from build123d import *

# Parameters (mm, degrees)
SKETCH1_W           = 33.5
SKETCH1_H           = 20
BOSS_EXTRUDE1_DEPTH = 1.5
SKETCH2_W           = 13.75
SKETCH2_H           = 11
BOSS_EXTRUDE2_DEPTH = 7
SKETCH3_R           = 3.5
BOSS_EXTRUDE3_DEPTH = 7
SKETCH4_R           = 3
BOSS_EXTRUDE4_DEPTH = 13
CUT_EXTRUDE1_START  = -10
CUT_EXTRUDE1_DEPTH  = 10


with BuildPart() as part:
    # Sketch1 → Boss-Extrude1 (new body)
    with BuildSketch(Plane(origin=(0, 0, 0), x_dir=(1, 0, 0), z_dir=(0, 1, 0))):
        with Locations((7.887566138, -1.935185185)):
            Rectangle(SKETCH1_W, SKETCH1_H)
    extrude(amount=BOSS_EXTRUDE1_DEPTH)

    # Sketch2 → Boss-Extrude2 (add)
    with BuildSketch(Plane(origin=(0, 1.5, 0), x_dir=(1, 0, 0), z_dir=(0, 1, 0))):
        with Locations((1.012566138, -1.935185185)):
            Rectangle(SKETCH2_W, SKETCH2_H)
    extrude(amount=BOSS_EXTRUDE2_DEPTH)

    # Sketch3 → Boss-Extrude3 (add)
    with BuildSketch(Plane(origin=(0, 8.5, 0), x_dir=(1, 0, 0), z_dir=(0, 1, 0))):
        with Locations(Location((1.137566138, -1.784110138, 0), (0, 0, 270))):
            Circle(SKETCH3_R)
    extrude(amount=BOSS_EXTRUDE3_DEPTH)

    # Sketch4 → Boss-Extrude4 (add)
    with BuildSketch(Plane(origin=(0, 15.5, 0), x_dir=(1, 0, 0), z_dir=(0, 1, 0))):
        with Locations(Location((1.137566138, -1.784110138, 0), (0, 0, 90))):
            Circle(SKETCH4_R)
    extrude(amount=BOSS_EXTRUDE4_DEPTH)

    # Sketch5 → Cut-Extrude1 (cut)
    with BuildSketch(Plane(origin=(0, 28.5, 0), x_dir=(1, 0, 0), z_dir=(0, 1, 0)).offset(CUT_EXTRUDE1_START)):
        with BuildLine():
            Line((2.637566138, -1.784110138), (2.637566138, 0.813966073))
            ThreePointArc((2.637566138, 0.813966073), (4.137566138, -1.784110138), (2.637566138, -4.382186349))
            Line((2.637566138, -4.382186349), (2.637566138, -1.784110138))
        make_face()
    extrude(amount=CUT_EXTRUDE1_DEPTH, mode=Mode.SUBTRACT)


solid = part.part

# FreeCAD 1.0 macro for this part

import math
import FreeCAD as App
import Part
import Sketcher
Q = App.Units.Quantity

doc = App.newDocument("Part")
body = doc.addObject("PartDesign::Body", "Body")

# Sketch on XZ plane
sketch1 = body.newObject("Sketcher::SketchObject", "Sketch")
sketch1.AttachmentSupport = (doc.getObject("XZ_Plane"), [""])
sketch1.MapMode = "FlatFace"
sketch1.addGeometry([
    Part.LineSegment(App.Vector(-9, -8, 0), App.Vector(-9, 12, 0)),
    Part.LineSegment(App.Vector(-9, 12, 0), App.Vector(25, 12, 0)),
    Part.LineSegment(App.Vector(25, 12, 0), App.Vector(25, -8, 0)),
    Part.LineSegment(App.Vector(25, -8, 0), App.Vector(-9, -8, 0)),
], False)
sketch1.addConstraint([
    Sketcher.Constraint("Coincident", 0, 2, 1, 1),
    Sketcher.Constraint("Coincident", 1, 2, 2, 1),
    Sketcher.Constraint("Coincident", 2, 2, 3, 1),
    Sketcher.Constraint("Coincident", 3, 2, 0, 1),
    Sketcher.Constraint("Vertical", 0),
    Sketcher.Constraint("Horizontal", 1),
    Sketcher.Constraint("Vertical", 2),
    Sketcher.Constraint("Horizontal", 3),
    Sketcher.Constraint("DistanceY", 0, 1, 0, 2, Q("20 mm")),
    Sketcher.Constraint("DistanceX", 1, 1, 1, 2, Q("33.5 mm")),
    Sketcher.Constraint("DistanceX", 0, 2, -1, 1, Q("8.862434 mm")),
    Sketcher.Constraint("DistanceY", -1, 1, 0, 2, Q("11.935185 mm")),
])
pad1 = body.newObject("PartDesign::Pad", "Pad")
pad1.Profile = sketch1
pad1.Length = 1.5
pad1.Reversed = True

# Sketch on XZ plane
sketch2 = body.newObject("Sketcher::SketchObject", "Sketch001")
sketch2.AttachmentSupport = (doc.getObject("XZ_Plane"), [""])
sketch2.MapMode = "FlatFace"
sketch2.AttachmentOffset = App.Placement(App.Vector(0, 0, -1.5), App.Rotation())
sketch2.addGeometry([
    Part.LineSegment(App.Vector(-6, -4, 0), App.Vector(-6, 7, 0)),
    Part.LineSegment(App.Vector(-6, 7, 0), App.Vector(8, 7, 0)),
    Part.LineSegment(App.Vector(8, 7, 0), App.Vector(8, -4, 0)),
    Part.LineSegment(App.Vector(8, -4, 0), App.Vector(-6, -4, 0)),
], False)
sketch2.addConstraint([
    Sketcher.Constraint("Coincident", 0, 2, 1, 1),
    Sketcher.Constraint("Coincident", 1, 2, 2, 1),
    Sketcher.Constraint("Coincident", 2, 2, 3, 1),
    Sketcher.Constraint("Coincident", 3, 2, 0, 1),
    Sketcher.Constraint("Vertical", 0),
    Sketcher.Constraint("Horizontal", 1),
    Sketcher.Constraint("Vertical", 2),
    Sketcher.Constraint("Horizontal", 3),
    Sketcher.Constraint("DistanceY", 0, 1, 0, 2, Q("11 mm")),
    Sketcher.Constraint("DistanceX", 1, 1, 1, 2, Q("13.75 mm")),
    Sketcher.Constraint("DistanceX", 0, 2, -1, 1, Q("5.862434 mm")),
    Sketcher.Constraint("DistanceY", -1, 1, 0, 2, Q("7.435185 mm")),
])
pad2 = body.newObject("PartDesign::Pad", "Pad001")
pad2.Profile = sketch2
pad2.Length = 7
pad2.Reversed = True

# Sketch on XZ plane
sketch3 = body.newObject("Sketcher::SketchObject", "Sketch002")
sketch3.AttachmentSupport = (doc.getObject("XZ_Plane"), [""])
sketch3.MapMode = "FlatFace"
sketch3.AttachmentOffset = App.Placement(App.Vector(0, 0, -8.5), App.Rotation())
sketch3.addGeometry(Part.Circle(App.Vector(1.1, 1.8, 0), App.Vector(0, 0, 1), 3.5), False)
sketch3.addConstraint([
    Sketcher.Constraint("Diameter", 0, Q("7 mm")),
    Sketcher.Constraint("DistanceY", -1, 1, 0, 3, Q("1.78411 mm")),
    Sketcher.Constraint("DistanceX", -1, 1, 0, 3, Q("1.137566 mm")),
])
pad3 = body.newObject("PartDesign::Pad", "Pad002")
pad3.Profile = sketch3
pad3.Length = 7
pad3.Reversed = True

# Sketch on XZ plane
sketch4 = body.newObject("Sketcher::SketchObject", "Sketch003")
sketch4.AttachmentSupport = (doc.getObject("XZ_Plane"), [""])
sketch4.MapMode = "FlatFace"
sketch4.AttachmentOffset = App.Placement(App.Vector(0, 0, -15.5), App.Rotation())
sketch4.addGeometry(Part.Circle(App.Vector(1.1, 1.8, 0), App.Vector(0, 0, 1), 3), False)
sketch4.addConstraint([
    Sketcher.Constraint("Diameter", 0, Q("6 mm")),
    Sketcher.Constraint("DistanceY", -1, 1, 0, 3, Q("1.78411 mm")),
    Sketcher.Constraint("DistanceX", -1, 1, 0, 3, Q("1.137566 mm")),
])
pad4 = body.newObject("PartDesign::Pad", "Pad003")
pad4.Profile = sketch4
pad4.Length = 13
pad4.Reversed = True

# Sketch on XZ plane
sketch5 = body.newObject("Sketcher::SketchObject", "Sketch004")
sketch5.AttachmentSupport = (doc.getObject("XZ_Plane"), [""])
sketch5.MapMode = "FlatFace"
sketch5.AttachmentOffset = App.Placement(App.Vector(0, 0, -18.5), App.Rotation())
sketch5.addGeometry([
    Part.ArcOfCircle(Part.Circle(App.Vector(1.1, 1.8, 0), App.Vector(0, 0, 1), 3), math.radians(-60), math.radians(60)),
    Part.LineSegment(App.Vector(2.6, -0.8, 0), App.Vector(2.6, 4.4, 0)),
], False)
sketch5.addConstraint([
    Sketcher.Constraint("Coincident", 0, 1, 1, 1),
    Sketcher.Constraint("Coincident", 1, 2, 0, 2),
    Sketcher.Constraint("Vertical", 1),
    Sketcher.Constraint("Radius", 0, Q("3 mm")),
    Sketcher.Constraint("DistanceX", 0, 3, 0, 1, Q("1.5 mm")),
    Sketcher.Constraint("DistanceY", -1, 1, 0, 3, Q("1.78411 mm")),
    Sketcher.Constraint("DistanceX", -1, 1, 0, 3, Q("1.137566 mm")),
])
pocket1 = body.newObject("PartDesign::Pocket", "Pocket")
pocket1.Profile = sketch5
pocket1.Length = 10

doc.recompute()
